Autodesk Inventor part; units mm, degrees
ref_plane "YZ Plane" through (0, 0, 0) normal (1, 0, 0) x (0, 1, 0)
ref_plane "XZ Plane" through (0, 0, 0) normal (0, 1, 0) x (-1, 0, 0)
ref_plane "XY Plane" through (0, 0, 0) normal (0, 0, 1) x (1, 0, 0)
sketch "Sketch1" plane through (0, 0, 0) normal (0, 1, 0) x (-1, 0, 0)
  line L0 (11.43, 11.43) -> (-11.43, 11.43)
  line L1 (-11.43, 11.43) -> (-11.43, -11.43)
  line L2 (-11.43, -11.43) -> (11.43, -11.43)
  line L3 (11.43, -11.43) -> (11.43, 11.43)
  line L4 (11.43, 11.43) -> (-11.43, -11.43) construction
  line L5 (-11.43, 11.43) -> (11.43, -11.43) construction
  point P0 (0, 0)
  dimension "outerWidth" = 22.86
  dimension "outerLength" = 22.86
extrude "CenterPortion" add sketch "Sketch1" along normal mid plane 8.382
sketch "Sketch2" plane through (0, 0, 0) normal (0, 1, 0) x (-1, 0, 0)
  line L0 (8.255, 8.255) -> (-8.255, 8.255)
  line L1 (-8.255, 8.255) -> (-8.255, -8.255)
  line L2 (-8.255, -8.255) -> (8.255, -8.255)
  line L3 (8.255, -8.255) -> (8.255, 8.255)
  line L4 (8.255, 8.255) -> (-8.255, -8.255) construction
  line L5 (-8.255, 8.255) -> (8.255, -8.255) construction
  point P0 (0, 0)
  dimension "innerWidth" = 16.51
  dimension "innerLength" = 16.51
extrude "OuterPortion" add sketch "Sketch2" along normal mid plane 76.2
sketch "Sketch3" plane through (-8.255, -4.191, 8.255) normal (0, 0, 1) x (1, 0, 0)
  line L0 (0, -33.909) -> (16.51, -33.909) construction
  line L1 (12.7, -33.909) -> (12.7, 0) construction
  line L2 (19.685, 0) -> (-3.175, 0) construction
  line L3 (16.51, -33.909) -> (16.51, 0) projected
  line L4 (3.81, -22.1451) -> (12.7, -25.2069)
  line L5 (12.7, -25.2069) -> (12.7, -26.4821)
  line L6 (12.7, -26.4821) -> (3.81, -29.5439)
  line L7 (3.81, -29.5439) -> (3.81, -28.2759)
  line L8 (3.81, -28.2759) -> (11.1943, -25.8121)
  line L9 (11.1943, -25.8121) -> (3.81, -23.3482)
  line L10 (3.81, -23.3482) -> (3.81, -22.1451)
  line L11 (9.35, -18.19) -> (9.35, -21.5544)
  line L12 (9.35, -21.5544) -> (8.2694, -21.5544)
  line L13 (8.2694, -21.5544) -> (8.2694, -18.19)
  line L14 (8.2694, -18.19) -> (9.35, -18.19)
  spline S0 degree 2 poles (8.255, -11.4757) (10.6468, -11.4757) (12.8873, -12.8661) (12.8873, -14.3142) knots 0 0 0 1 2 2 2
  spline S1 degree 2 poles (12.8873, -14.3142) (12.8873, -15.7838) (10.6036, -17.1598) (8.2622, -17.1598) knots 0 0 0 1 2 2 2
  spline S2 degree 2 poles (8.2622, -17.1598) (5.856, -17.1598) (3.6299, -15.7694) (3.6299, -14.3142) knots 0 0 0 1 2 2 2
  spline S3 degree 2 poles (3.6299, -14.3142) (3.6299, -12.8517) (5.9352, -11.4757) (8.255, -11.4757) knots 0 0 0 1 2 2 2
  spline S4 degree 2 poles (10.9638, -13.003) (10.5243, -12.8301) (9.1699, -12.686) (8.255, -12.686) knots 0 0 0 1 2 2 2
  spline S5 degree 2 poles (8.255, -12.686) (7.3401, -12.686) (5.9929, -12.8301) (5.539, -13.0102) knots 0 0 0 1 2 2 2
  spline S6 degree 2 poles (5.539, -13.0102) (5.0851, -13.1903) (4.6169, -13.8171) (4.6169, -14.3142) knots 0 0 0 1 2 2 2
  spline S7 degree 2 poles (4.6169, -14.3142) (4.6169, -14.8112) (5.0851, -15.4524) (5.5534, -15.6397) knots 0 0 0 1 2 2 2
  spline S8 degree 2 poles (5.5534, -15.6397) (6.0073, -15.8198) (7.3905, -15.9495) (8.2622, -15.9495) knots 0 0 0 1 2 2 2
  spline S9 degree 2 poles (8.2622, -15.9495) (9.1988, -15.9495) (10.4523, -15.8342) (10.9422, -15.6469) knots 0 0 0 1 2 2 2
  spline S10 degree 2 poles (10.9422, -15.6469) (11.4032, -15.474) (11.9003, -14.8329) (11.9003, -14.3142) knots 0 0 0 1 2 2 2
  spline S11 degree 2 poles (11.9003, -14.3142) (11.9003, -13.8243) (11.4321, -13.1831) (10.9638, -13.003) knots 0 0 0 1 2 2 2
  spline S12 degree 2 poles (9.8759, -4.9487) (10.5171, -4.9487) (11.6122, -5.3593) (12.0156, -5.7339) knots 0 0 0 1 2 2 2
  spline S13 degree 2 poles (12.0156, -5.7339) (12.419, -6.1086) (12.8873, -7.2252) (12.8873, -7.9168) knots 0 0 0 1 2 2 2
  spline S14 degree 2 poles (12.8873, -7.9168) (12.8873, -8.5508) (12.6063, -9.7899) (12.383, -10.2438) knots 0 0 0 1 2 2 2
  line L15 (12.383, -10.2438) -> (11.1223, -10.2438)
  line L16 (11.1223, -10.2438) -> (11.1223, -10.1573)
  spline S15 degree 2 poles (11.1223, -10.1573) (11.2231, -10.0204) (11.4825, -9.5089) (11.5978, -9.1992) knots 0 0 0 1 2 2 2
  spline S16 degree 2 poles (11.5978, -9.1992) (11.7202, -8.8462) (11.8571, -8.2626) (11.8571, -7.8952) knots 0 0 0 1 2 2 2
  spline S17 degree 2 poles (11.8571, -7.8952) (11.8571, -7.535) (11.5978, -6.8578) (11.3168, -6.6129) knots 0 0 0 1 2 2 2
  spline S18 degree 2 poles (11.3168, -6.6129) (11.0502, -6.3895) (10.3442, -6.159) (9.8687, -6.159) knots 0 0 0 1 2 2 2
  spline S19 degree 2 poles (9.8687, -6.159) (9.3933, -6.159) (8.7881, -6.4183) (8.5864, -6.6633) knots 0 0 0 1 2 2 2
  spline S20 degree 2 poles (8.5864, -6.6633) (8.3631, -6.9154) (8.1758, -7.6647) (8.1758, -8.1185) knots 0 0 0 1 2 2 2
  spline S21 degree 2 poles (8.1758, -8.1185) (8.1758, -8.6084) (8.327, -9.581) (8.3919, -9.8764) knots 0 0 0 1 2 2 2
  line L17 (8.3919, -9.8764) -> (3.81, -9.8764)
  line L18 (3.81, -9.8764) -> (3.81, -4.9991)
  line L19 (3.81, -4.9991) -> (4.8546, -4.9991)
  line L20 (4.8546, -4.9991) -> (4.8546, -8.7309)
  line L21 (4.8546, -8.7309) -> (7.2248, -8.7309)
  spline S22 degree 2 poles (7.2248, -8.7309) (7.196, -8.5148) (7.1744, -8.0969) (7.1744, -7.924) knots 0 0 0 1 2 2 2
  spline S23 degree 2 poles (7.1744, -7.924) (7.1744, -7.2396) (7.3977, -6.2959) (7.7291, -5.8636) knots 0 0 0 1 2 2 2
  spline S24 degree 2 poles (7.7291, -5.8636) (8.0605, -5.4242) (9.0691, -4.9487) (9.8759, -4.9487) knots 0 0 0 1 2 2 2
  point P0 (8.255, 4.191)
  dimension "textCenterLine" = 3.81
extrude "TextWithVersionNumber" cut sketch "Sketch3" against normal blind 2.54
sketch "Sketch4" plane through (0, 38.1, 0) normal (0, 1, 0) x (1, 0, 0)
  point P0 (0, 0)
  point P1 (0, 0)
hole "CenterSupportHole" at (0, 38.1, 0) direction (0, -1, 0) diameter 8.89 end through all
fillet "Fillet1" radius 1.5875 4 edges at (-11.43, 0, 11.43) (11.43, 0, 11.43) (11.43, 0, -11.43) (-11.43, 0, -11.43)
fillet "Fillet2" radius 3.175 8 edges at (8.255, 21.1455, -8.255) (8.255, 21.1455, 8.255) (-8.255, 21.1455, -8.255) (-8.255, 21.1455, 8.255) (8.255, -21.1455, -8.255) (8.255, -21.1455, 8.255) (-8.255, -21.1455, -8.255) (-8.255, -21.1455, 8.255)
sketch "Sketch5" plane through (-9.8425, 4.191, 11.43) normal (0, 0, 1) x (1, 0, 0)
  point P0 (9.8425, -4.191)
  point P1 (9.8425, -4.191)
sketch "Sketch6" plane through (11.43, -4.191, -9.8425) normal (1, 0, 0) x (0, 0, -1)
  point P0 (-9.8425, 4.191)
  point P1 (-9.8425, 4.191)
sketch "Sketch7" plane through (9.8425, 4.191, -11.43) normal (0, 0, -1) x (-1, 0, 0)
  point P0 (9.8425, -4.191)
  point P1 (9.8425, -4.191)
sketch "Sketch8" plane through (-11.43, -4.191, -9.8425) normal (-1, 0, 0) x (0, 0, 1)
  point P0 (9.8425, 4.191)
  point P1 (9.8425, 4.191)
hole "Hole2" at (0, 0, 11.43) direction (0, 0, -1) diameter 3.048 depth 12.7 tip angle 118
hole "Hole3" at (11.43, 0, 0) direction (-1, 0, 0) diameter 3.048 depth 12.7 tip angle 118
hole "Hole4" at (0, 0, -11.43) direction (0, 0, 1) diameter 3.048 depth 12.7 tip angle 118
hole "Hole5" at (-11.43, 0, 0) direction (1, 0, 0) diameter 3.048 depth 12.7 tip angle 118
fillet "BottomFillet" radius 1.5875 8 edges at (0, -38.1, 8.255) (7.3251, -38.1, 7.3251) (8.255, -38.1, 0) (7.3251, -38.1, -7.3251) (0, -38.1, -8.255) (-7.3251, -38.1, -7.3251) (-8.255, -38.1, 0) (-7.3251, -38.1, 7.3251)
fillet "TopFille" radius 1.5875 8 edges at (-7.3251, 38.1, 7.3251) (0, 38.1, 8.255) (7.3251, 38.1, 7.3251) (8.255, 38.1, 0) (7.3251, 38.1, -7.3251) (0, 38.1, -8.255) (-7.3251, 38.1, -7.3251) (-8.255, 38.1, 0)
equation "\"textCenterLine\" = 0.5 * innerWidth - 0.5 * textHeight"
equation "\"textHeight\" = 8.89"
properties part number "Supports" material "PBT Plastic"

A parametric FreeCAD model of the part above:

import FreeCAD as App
import Part
import Sketcher
from FreeCAD import Vector
Q = App.Units.Quantity


def edges_at(feature, points):
    """Names of the edges that pass closest to the given points."""
    edges = feature.Shape.Edges
    near = lambda p: min(range(len(edges)), key=lambda i: edges[i].distToShape(Part.Vertex(*p))[0])
    return sorted({f"Edge{near(p) + 1}" for p in points})


def add_polygon(sketch, points):
    """Adds a closed chain of lines whose ends are joined by coincident constraints."""
    first, n = sketch.GeometryCount, len(points)
    for a, b in zip(points, points[1:] + points[:1]):
        sketch.addGeometry(Part.LineSegment(App.Vector(*a, 0), App.Vector(*b, 0)), False)
    for i in range(n):
        sketch.addConstraint(Sketcher.Constraint("Coincident", first + i, 2, first + (i + 1) % n, 1))

doc = App.newDocument("Part")
body = doc.addObject("PartDesign::Body", "Body")

sketch1 = doc.addObject("Sketcher::SketchObject", "Sketch")
body.addObject(sketch1)
sketch1.AttachmentSupport = (doc.XZ_Plane, [""])
sketch1.MapMode = "FlatFace"
add_polygon(sketch1, [(-11, -11), (-11, 11), (11, 11), (11, -11)])
sketch1.addConstraint([
    Sketcher.Constraint("Vertical", 0),
    Sketcher.Constraint("Horizontal", 1),
    Sketcher.Constraint("Vertical", 2),
    Sketcher.Constraint("Horizontal", 3),
    Sketcher.Constraint("Symmetric", 0, 2, 2, 2, -1, 1),
    Sketcher.Constraint("Equal", 3, 0),
    Sketcher.Constraint("DistanceX", 1, 1, 1, 2, Q("0.9 in")),
])
pad1 = doc.addObject("PartDesign::Pad", "Pad")
body.addObject(pad1)
pad1.Profile = sketch1
pad1.Length = Q("0.33 in")
pad1.Midplane = True

sketch2 = doc.addObject("Sketcher::SketchObject", "Sketch001")
body.addObject(sketch2)
sketch2.AttachmentSupport = (doc.XZ_Plane, [""])
sketch2.MapMode = "FlatFace"
add_polygon(sketch2, [(-8, -8), (-8, 8), (8, 8), (8, -8)])
sketch2.addConstraint([
    Sketcher.Constraint("Vertical", 0),
    Sketcher.Constraint("Horizontal", 1),
    Sketcher.Constraint("Vertical", 2),
    Sketcher.Constraint("Horizontal", 3),
    Sketcher.Constraint("Symmetric", 0, 2, 2, 2, -1, 1),
    Sketcher.Constraint("Equal", 3, 0),
    Sketcher.Constraint("DistanceX", 1, 1, 1, 2, Q("0.65 in")),
])
pad2 = doc.addObject("PartDesign::Pad", "Pad001")
body.addObject(pad2)
pad2.Profile = sketch2
pad2.Length = Q("3 in")
pad2.Midplane = True

sketch3 = doc.addObject("Sketcher::SketchObject", "Sketch002")
body.addObject(sketch3)
sketch3.AttachmentSupport = (doc.XY_Plane, [""])
sketch3.MapMode = "FlatFace"
sketch3.AttachmentOffset = App.Placement(Vector(0, 0, 0.325 * 25.4), App.Rotation())
add_polygon(sketch3, [(4.445, -29.3979), (-4.445, -26.3361), (-4.445, -27.5392), (2.9393, -30.0031), (-4.445, -32.4669), (-4.445, -33.7349), (4.445, -30.6731)])
add_polygon(sketch3, [(1.095, -25.7454), (1.095, -22.381), (0.0144, -22.381), (0.0144, -25.7454)])
sketch3.addGeometry(Part.BSplineCurve([Vector(0, -15.6667, 0), Vector(2.3918, -15.6667, 0), Vector(4.6323, -17.0571, 0), Vector(4.6323, -18.5052, 0)], [3, 1, 3], [0, 1, 2], False, 2, [1, 1, 1, 1], False), False)
sketch3.addGeometry(Part.BSplineCurve([Vector(-4.6251, -18.5052, 0), Vector(-4.6251, -17.0427, 0), Vector(-2.3198, -15.6667, 0), Vector(0, -15.6667, 0)], [3, 1, 3], [0, 1, 2], False, 2, [1, 1, 1, 1], False), False)
sketch3.addGeometry(Part.BSplineCurve([Vector(0.0072, -21.3508, 0), Vector(-2.399, -21.3508, 0), Vector(-4.6251, -19.9604, 0), Vector(-4.6251, -18.5052, 0)], [3, 1, 3], [0, 1, 2], False, 2, [1, 1, 1, 1], False), False)
sketch3.addGeometry(Part.BSplineCurve([Vector(4.6323, -18.5052, 0), Vector(4.6323, -19.9748, 0), Vector(2.3486, -21.3508, 0), Vector(0.0072, -21.3508, 0)], [3, 1, 3], [0, 1, 2], False, 2, [1, 1, 1, 1], False), False)
sketch3.addGeometry(Part.BSplineCurve([Vector(2.7088, -17.194, 0), Vector(2.2693, -17.0211, 0), Vector(0.9149, -16.877, 0), Vector(0, -16.877, 0)], [3, 1, 3], [0, 1, 2], False, 2, [1, 1, 1, 1], False), False)
sketch3.addGeometry(Part.BSplineCurve([Vector(3.6453, -18.5052, 0), Vector(3.6453, -18.0153, 0), Vector(3.1771, -17.3741, 0), Vector(2.7088, -17.194, 0)], [3, 1, 3], [0, 1, 2], False, 2, [1, 1, 1, 1], False), False)
sketch3.addGeometry(Part.BSplineCurve([Vector(2.6872, -19.8379, 0), Vector(3.1482, -19.665, 0), Vector(3.6453, -19.0239, 0), Vector(3.6453, -18.5052, 0)], [3, 1, 3], [0, 1, 2], False, 2, [1, 1, 1, 1], False), False)
sketch3.addGeometry(Part.BSplineCurve([Vector(0.0072, -20.1405, 0), Vector(0.9438, -20.1405, 0), Vector(2.1973, -20.0252, 0), Vector(2.6872, -19.8379, 0)], [3, 1, 3], [0, 1, 2], False, 2, [1, 1, 1, 1], False), False)
sketch3.addGeometry(Part.BSplineCurve([Vector(-2.7016, -19.8307, 0), Vector(-2.2477, -20.0108, 0), Vector(-0.8645, -20.1405, 0), Vector(0.0072, -20.1405, 0)], [3, 1, 3], [0, 1, 2], False, 2, [1, 1, 1, 1], False), False)
sketch3.addGeometry(Part.BSplineCurve([Vector(-3.6381, -18.5052, 0), Vector(-3.6381, -19.0022, 0), Vector(-3.1699, -19.6434, 0), Vector(-2.7016, -19.8307, 0)], [3, 1, 3], [0, 1, 2], False, 2, [1, 1, 1, 1], False), False)
sketch3.addGeometry(Part.BSplineCurve([Vector(-2.716, -17.2012, 0), Vector(-3.1699, -17.3813, 0), Vector(-3.6381, -18.0081, 0), Vector(-3.6381, -18.5052, 0)], [3, 1, 3], [0, 1, 2], False, 2, [1, 1, 1, 1], False), False)
sketch3.addGeometry(Part.BSplineCurve([Vector(0, -16.877, 0), Vector(-0.9149, -16.877, 0), Vector(-2.2621, -17.0211, 0), Vector(-2.716, -17.2012, 0)], [3, 1, 3], [0, 1, 2], False, 2, [1, 1, 1, 1], False), False)
sketch3.addGeometry(Part.BSplineCurve([Vector(1.6209, -9.1397, 0), Vector(2.2621, -9.1397, 0), Vector(3.3572, -9.5503, 0), Vector(3.7606, -9.9249, 0)], [3, 1, 3], [0, 1, 2], False, 2, [1, 1, 1, 1], False), False)
sketch3.addGeometry(Part.BSplineCurve([Vector(-0.5259, -10.0546, 0), Vector(-0.1945, -9.6152, 0), Vector(0.8141, -9.1397, 0), Vector(1.6209, -9.1397, 0)], [3, 1, 3], [0, 1, 2], False, 2, [1, 1, 1, 1], False), False)
sketch3.addGeometry(Part.BSplineCurve([Vector(-1.0806, -12.115, 0), Vector(-1.0806, -11.4306, 0), Vector(-0.8573, -10.4869, 0), Vector(-0.5259, -10.0546, 0)], [3, 1, 3], [0, 1, 2], False, 2, [1, 1, 1, 1], False), False)
sketch3.addGeometry(Part.BSplineCurve([Vector(-1.0302, -12.9219, 0), Vector(-1.059, -12.7058, 0), Vector(-1.0806, -12.2879, 0), Vector(-1.0806, -12.115, 0)], [3, 1, 3], [0, 1, 2], False, 2, [1, 1, 1, 1], False), False)
sketch3.addGeometry(Part.LineSegment(Vector(-1.0302, -12.9219, 0), Vector(-3.4004, -12.9219, 0)), False)
sketch3.addGeometry(Part.LineSegment(Vector(-3.4004, -12.9219, 0), Vector(-3.4004, -9.1901, 0)), False)
sketch3.addGeometry(Part.LineSegment(Vector(-3.4004, -9.1901, 0), Vector(-4.445, -9.1901, 0)), False)
sketch3.addGeometry(Part.LineSegment(Vector(-4.445, -9.1901, 0), Vector(-4.445, -14.0674, 0)), False)
sketch3.addGeometry(Part.LineSegment(Vector(-4.445, -14.0674, 0), Vector(0.1369, -14.0674, 0)), False)
sketch3.addGeometry(Part.BSplineCurve([Vector(-0.0792, -12.3095, 0), Vector(-0.0792, -12.7994, 0), Vector(0.072, -13.772, 0), Vector(0.1369, -14.0674, 0)], [3, 1, 3], [0, 1, 2], False, 2, [1, 1, 1, 1], False), False)
sketch3.addGeometry(Part.BSplineCurve([Vector(0.3314, -10.8543, 0), Vector(0.1081, -11.1064, 0), Vector(-0.0792, -11.8557, 0), Vector(-0.0792, -12.3095, 0)], [3, 1, 3], [0, 1, 2], False, 2, [1, 1, 1, 1], False), False)
sketch3.addGeometry(Part.BSplineCurve([Vector(1.6137, -10.35, 0), Vector(1.1383, -10.35, 0), Vector(0.5331, -10.6093, 0), Vector(0.3314, -10.8543, 0)], [3, 1, 3], [0, 1, 2], False, 2, [1, 1, 1, 1], False), False)
sketch3.addGeometry(Part.BSplineCurve([Vector(3.0618, -10.8039, 0), Vector(2.7952, -10.5805, 0), Vector(2.0892, -10.35, 0), Vector(1.6137, -10.35, 0)], [3, 1, 3], [0, 1, 2], False, 2, [1, 1, 1, 1], False), False)
sketch3.addGeometry(Part.BSplineCurve([Vector(3.6021, -12.0862, 0), Vector(3.6021, -11.726, 0), Vector(3.3428, -11.0488, 0), Vector(3.0618, -10.8039, 0)], [3, 1, 3], [0, 1, 2], False, 2, [1, 1, 1, 1], False), False)
sketch3.addGeometry(Part.BSplineCurve([Vector(3.3428, -13.3902, 0), Vector(3.4652, -13.0372, 0), Vector(3.6021, -12.4536, 0), Vector(3.6021, -12.0862, 0)], [3, 1, 3], [0, 1, 2], False, 2, [1, 1, 1, 1], False), False)
sketch3.addGeometry(Part.BSplineCurve([Vector(2.8673, -14.3483, 0), Vector(2.9681, -14.2114, 0), Vector(3.2275, -13.6999, 0), Vector(3.3428, -13.3902, 0)], [3, 1, 3], [0, 1, 2], False, 2, [1, 1, 1, 1], False), False)
sketch3.addGeometry(Part.LineSegment(Vector(2.8673, -14.3483, 0), Vector(2.8673, -14.4348, 0)), False)
sketch3.addGeometry(Part.LineSegment(Vector(2.8673, -14.4348, 0), Vector(4.128, -14.4348, 0)), False)
sketch3.addGeometry(Part.BSplineCurve([Vector(4.6323, -12.1078, 0), Vector(4.6323, -12.7418, 0), Vector(4.3513, -13.9809, 0), Vector(4.128, -14.4348, 0)], [3, 1, 3], [0, 1, 2], False, 2, [1, 1, 1, 1], False), False)
sketch3.addGeometry(Part.BSplineCurve([Vector(3.7606, -9.9249, 0), Vector(4.164, -10.2996, 0), Vector(4.6323, -11.4162, 0), Vector(4.6323, -12.1078, 0)], [3, 1, 3], [0, 1, 2], False, 2, [1, 1, 1, 1], False), False)
sketch3.addConstraint([
    Sketcher.Constraint("Block", 11),
    Sketcher.Constraint("Block", 12),
    Sketcher.Constraint("Block", 13),
    Sketcher.Constraint("Block", 14),
    Sketcher.Constraint("Block", 15),
    Sketcher.Constraint("Block", 16),
    Sketcher.Constraint("Block", 17),
    Sketcher.Constraint("Block", 18),
    Sketcher.Constraint("Block", 19),
    Sketcher.Constraint("Block", 20),
    Sketcher.Constraint("Block", 21),
    Sketcher.Constraint("Block", 22),
    Sketcher.Constraint("Block", 23),
    Sketcher.Constraint("Block", 24),
    Sketcher.Constraint("Block", 25),
    Sketcher.Constraint("Block", 26),
    Sketcher.Constraint("Block", 32),
    Sketcher.Constraint("Block", 33),
    Sketcher.Constraint("Block", 34),
    Sketcher.Constraint("Block", 35),
    Sketcher.Constraint("Block", 36),
    Sketcher.Constraint("Block", 37),
    Sketcher.Constraint("Block", 38),
    Sketcher.Constraint("Block", 41),
    Sketcher.Constraint("Block", 42),
    Sketcher.Constraint("Coincident", 26, 1, 27, 1),
    Sketcher.Constraint("Coincident", 27, 2, 28, 1),
    Sketcher.Constraint("Coincident", 28, 2, 29, 1),
    Sketcher.Constraint("Coincident", 29, 2, 30, 1),
    Sketcher.Constraint("Coincident", 30, 2, 31, 1),
    Sketcher.Constraint("Coincident", 31, 2, 32, 2),
    Sketcher.Constraint("Coincident", 38, 1, 39, 1),
    Sketcher.Constraint("Coincident", 39, 2, 40, 1),
    Sketcher.Constraint("Coincident", 40, 2, 41, 2),
    Sketcher.Constraint("Vertical", 1),
    Sketcher.Constraint("Vertical", 4),
    Sketcher.Constraint("Vertical", 6),
    Sketcher.Constraint("Vertical", 7),
    Sketcher.Constraint("Horizontal", 8),
    Sketcher.Constraint("Vertical", 9),
    Sketcher.Constraint("Horizontal", 10),
    Sketcher.Constraint("Horizontal", 27),
    Sketcher.Constraint("Vertical", 28),
    Sketcher.Constraint("Horizontal", 29),
    Sketcher.Constraint("Vertical", 30),
    Sketcher.Constraint("Horizontal", 31),
    Sketcher.Constraint("Vertical", 39),
    Sketcher.Constraint("Horizontal", 40),
    Sketcher.Constraint("Vertical", 1, 2, 3, 2),
    Sketcher.Constraint("Vertical", 4, 2, 29, 2),
    Sketcher.Constraint("Equal", 2, 3),
    Sketcher.Constraint("Equal", 0, 5),
    Sketcher.Constraint("DistanceX", 3, 2, 5, 2, Q("0.35 in")),
    Sketcher.Constraint("DistanceX", 31, 1, 31, 2, Q("0.1804 in")),
    Sketcher.Constraint("DistanceY", 6, 1, 6, 2, Q("0.0502 in")),
    Sketcher.Constraint("DistanceY", 2, 2, 1, 2, Q("0.097 in")),
    Sketcher.Constraint("DistanceX", 8, 2, 8, 1, 1.0806),
    Sketcher.Constraint("DistanceX", 27, 2, 27, 1, 2.3702),
    Sketcher.Constraint("DistanceY", 1, 2, 1, 1, 1.203),
    Sketcher.Constraint("DistanceY", 4, 2, 4, 1, 1.268),
    Sketcher.Constraint("DistanceY", 7, 1, 7, 2, 3.3644),
    Sketcher.Constraint("DistanceY", 28, 1, 28, 2, 3.7318),
    Sketcher.Constraint("DistanceY", 5, 2, -1, 1, Q("1.2076 in")),
    Sketcher.Constraint("DistanceX", -1, 1, 7, 2, Q("0.0431 in")),
    Sketcher.Constraint("DistanceY", 9, 2, -1, 1, Q("1.0136 in")),
    Sketcher.Constraint("DistanceX", 7, 2, 2, 2, Q("0.0726 in")),
])
pocket1 = doc.addObject("PartDesign::Pocket", "Pocket")
body.addObject(pocket1)
pocket1.Profile = sketch3
pocket1.Length = Q("0.1 in")

sketch4 = doc.addObject("Sketcher::SketchObject", "Sketch003")
body.addObject(sketch4)
sketch4.AttachmentSupport = (doc.XZ_Plane, [""])
sketch4.MapMode = "FlatFace"
sketch4.AttachmentOffset = App.Placement(Vector(0, 0, -1.5 * 25.4), App.Rotation())
sketch4.addGeometry(Part.Circle(Vector(0, 0, 0), Vector(0, 0, 1), 4.4), False)
sketch4.addConstraint([
    Sketcher.Constraint("Coincident", 0, 3, -1, 1),
    Sketcher.Constraint("Diameter", 0, Q("0.35 in")),
])
doc.recompute()
hole = doc.addObject("PartDesign::Hole", "Hole")
body.addObject(hole)
hole.Profile = sketch4
hole.ThreadType = "None"
hole.Diameter = Q("0.35 in")
hole.DepthType = "ThroughAll"
hole.Reversed = True
doc.recompute()

fillet = doc.addObject("PartDesign::Fillet", "Fillet")
body.addObject(fillet)
fillet.Base = (hole, edges_at(hole, [
    (-11.43, 0, 11.43),
    (11.43, 0, 11.43),
    (11.43, 0, -11.43),
    (-11.43, 0, -11.43),
]))
fillet.Radius = Q("0.0625 in")
doc.recompute()

fillet2 = doc.addObject("PartDesign::Fillet", "Fillet001")
body.addObject(fillet2)
fillet2.Base = (fillet, edges_at(fillet, [
    (8.255, 21.145, -8.255),
    (8.255, 21.145, 8.255),
    (-8.255, 21.145, -8.255),
    (-8.255, 21.145, 8.255),
    (8.255, -21.145, -8.255),
    (8.255, -21.145, 8.255),
    (-8.255, -21.145, -8.255),
    (-8.255, -21.145, 8.255),
]))
fillet2.Radius = Q("0.125 in")

sketch5 = doc.addObject("Sketcher::SketchObject", "Sketch004")
body.addObject(sketch5)
sketch5.AttachmentSupport = (doc.XY_Plane, [""])
sketch5.MapMode = "FlatFace"
sketch5.AttachmentOffset = App.Placement(Vector(0, 0, 0.45 * 25.4), App.Rotation())
sketch5.addGeometry(Part.Circle(Vector(0, 0, 0), Vector(0, 0, 1), 1.5), False)
sketch5.addConstraint([
    Sketcher.Constraint("Coincident", 0, 3, -1, 1),
    Sketcher.Constraint("Diameter", 0, Q("0.12 in")),
])
doc.recompute()
hole2 = doc.addObject("PartDesign::Hole", "Hole001")
body.addObject(hole2)
hole2.Profile = sketch5
hole2.ThreadType = "None"
hole2.Diameter = Q("0.12 in")
hole2.DepthType = "Dimension"
hole2.Depth = Q("0.5 in")
hole2.DrillPoint = "Angled"
hole2.DrillPointAngle = 118

sketch6 = doc.addObject("Sketcher::SketchObject", "Sketch005")
body.addObject(sketch6)
sketch6.AttachmentSupport = (doc.YZ_Plane, [""])
sketch6.MapMode = "FlatFace"
sketch6.AttachmentOffset = App.Placement(Vector(0, 0, 0.45 * 25.4), App.Rotation())
sketch6.addGeometry(Part.Circle(Vector(0, 0, 0), Vector(0, 0, 1), 1.5), False)
sketch6.addConstraint([
    Sketcher.Constraint("Coincident", 0, 3, -1, 1),
    Sketcher.Constraint("Diameter", 0, Q("0.12 in")),
])
doc.recompute()
hole3 = doc.addObject("PartDesign::Hole", "Hole002")
body.addObject(hole3)
hole3.Profile = sketch6
hole3.ThreadType = "None"
hole3.Diameter = Q("0.12 in")
hole3.DepthType = "Dimension"
hole3.Depth = Q("0.5 in")
hole3.DrillPoint = "Angled"
hole3.DrillPointAngle = 118

sketch7 = doc.addObject("Sketcher::SketchObject", "Sketch006")
body.addObject(sketch7)
sketch7.AttachmentSupport = (doc.XY_Plane, [""])
sketch7.MapMode = "FlatFace"
sketch7.AttachmentOffset = App.Placement(Vector(0, 0, -0.45 * 25.4), App.Rotation())
sketch7.addGeometry(Part.Circle(Vector(0, 0, 0), Vector(0, 0, 1), 1.5), False)
sketch7.addConstraint([
    Sketcher.Constraint("Coincident", 0, 3, -1, 1),
    Sketcher.Constraint("Diameter", 0, Q("0.12 in")),
])
doc.recompute()
hole4 = doc.addObject("PartDesign::Hole", "Hole003")
body.addObject(hole4)
hole4.Profile = sketch7
hole4.ThreadType = "None"
hole4.Diameter = Q("0.12 in")
hole4.DepthType = "Dimension"
hole4.Depth = Q("0.5 in")
hole4.DrillPoint = "Angled"
hole4.DrillPointAngle = 118
hole4.Reversed = True

sketch8 = doc.addObject("Sketcher::SketchObject", "Sketch007")
body.addObject(sketch8)
sketch8.AttachmentSupport = (doc.YZ_Plane, [""])
sketch8.MapMode = "FlatFace"
sketch8.AttachmentOffset = App.Placement(Vector(0, 0, -0.45 * 25.4), App.Rotation())
sketch8.addGeometry(Part.Circle(Vector(0, 0, 0), Vector(0, 0, 1), 1.5), False)
sketch8.addConstraint([
    Sketcher.Constraint("Coincident", 0, 3, -1, 1),
    Sketcher.Constraint("Diameter", 0, Q("0.12 in")),
])
doc.recompute()
hole5 = doc.addObject("PartDesign::Hole", "Hole004")
body.addObject(hole5)
hole5.Profile = sketch8
hole5.ThreadType = "None"
hole5.Diameter = Q("0.12 in")
hole5.DepthType = "Dimension"
hole5.Depth = Q("0.5 in")
hole5.DrillPoint = "Angled"
hole5.DrillPointAngle = 118
hole5.Reversed = True
doc.recompute()

fillet3 = doc.addObject("PartDesign::Fillet", "Fillet002")
body.addObject(fillet3)
fillet3.Base = (hole5, edges_at(hole5, [
    (0, -38.1, 8.255),
    (7.325, -38.1, 7.325),
    (8.255, -38.1, 0),
    (7.325, -38.1, -7.325),
    (0, -38.1, -8.255),
    (-7.325, -38.1, -7.325),
    (-8.255, -38.1, 0),
    (-7.325, -38.1, 7.325),
]))
fillet3.Radius = Q("0.0625 in")
doc.recompute()

fillet4 = doc.addObject("PartDesign::Fillet", "Fillet003")
body.addObject(fillet4)
fillet4.Base = (fillet3, edges_at(fillet3, [
    (-7.325, 38.1, 7.325),
    (0, 38.1, 8.255),
    (7.325, 38.1, 7.325),
    (8.255, 38.1, 0),
    (7.325, 38.1, -7.325),
    (0, 38.1, -8.255),
    (-7.325, 38.1, -7.325),
    (-8.255, 38.1, 0),
]))
fillet4.Radius = Q("0.0625 in")

doc.recompute()
